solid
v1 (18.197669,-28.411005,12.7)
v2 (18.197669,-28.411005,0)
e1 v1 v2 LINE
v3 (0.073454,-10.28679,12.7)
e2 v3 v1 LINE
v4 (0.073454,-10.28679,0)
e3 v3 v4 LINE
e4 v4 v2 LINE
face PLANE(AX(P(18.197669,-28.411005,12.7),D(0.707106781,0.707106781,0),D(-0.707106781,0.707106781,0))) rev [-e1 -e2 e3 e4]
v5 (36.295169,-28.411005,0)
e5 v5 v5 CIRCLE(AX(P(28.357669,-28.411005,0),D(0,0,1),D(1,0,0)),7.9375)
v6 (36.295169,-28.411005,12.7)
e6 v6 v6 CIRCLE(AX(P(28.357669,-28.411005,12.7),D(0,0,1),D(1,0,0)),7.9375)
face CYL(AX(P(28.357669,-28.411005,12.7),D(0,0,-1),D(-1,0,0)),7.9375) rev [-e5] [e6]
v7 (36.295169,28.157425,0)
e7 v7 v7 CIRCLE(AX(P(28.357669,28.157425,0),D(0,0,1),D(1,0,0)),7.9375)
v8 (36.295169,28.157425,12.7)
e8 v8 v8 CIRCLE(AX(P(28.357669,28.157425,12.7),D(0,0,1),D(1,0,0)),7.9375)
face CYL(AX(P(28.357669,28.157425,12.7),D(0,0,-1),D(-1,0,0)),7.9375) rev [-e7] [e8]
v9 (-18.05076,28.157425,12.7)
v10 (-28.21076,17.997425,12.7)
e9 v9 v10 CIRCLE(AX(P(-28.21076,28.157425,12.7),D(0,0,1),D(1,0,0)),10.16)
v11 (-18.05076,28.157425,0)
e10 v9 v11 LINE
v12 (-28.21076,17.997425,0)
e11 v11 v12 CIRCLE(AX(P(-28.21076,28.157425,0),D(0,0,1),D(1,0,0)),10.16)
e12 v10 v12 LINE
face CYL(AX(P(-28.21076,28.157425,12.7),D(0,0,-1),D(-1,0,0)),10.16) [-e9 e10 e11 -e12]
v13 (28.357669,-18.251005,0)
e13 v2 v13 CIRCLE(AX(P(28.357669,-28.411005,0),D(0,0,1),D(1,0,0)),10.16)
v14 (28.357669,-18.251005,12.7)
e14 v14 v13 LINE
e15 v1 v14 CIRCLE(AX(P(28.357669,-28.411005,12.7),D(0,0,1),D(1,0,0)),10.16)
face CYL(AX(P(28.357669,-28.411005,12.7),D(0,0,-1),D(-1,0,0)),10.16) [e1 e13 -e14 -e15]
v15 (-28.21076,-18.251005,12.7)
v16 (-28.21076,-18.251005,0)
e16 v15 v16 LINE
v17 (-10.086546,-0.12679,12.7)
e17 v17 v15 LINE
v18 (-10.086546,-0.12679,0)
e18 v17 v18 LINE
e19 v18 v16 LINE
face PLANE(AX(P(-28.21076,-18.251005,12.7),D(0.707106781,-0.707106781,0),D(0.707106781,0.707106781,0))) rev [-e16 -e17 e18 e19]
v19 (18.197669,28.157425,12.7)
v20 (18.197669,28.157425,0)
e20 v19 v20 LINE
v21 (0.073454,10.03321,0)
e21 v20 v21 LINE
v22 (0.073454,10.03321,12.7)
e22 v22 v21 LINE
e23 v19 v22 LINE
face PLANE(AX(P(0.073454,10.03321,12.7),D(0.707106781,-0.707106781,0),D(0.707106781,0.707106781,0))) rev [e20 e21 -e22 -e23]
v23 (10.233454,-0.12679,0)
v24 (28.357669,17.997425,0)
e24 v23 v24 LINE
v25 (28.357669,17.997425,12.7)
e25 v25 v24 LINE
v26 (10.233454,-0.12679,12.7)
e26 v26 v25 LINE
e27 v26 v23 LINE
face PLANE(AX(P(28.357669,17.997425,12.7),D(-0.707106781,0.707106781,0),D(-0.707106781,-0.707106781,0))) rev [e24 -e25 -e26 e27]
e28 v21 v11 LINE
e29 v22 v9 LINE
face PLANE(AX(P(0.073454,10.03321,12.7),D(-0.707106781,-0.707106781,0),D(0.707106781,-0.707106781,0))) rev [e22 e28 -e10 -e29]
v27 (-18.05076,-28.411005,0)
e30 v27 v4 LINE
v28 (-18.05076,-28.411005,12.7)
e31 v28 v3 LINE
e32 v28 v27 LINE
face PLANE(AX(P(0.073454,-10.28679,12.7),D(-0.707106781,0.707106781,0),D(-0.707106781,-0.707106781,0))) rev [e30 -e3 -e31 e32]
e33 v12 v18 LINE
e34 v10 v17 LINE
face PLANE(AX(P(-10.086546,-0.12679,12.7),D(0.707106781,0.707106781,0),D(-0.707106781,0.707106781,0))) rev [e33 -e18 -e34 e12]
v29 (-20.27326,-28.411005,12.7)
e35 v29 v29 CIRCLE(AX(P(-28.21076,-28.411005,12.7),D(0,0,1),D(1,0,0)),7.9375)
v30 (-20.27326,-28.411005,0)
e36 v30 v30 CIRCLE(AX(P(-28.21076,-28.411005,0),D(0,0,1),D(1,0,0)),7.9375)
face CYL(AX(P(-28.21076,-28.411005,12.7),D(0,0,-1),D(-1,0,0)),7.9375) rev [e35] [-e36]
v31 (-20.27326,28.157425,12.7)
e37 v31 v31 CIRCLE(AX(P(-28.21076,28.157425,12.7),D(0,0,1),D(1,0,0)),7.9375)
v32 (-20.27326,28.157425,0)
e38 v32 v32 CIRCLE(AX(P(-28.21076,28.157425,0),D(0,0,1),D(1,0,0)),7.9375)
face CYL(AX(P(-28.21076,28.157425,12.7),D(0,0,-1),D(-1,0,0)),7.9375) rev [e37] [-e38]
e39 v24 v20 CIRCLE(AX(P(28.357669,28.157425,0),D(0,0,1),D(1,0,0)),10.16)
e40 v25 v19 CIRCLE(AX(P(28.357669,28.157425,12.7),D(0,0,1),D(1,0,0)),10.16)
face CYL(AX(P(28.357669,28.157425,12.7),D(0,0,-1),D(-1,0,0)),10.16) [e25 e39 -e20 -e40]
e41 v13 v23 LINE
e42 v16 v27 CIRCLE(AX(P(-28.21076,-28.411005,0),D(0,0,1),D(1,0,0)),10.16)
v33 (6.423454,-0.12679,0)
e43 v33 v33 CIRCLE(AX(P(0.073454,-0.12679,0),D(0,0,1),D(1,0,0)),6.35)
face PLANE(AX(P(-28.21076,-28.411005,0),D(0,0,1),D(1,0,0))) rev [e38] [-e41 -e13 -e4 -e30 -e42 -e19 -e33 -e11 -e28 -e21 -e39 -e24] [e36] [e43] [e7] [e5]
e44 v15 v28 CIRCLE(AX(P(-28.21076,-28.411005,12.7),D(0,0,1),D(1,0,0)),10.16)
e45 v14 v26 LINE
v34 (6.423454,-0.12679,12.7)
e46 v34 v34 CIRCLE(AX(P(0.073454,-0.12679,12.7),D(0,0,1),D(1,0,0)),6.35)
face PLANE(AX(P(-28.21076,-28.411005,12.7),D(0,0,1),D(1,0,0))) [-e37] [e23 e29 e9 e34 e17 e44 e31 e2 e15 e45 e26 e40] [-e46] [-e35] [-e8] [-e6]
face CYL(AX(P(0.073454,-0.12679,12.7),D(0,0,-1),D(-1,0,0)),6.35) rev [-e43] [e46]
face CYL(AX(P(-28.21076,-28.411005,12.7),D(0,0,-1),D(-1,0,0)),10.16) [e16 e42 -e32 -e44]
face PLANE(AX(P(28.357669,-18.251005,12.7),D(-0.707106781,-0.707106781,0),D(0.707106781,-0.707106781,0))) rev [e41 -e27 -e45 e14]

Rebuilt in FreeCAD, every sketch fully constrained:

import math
import FreeCAD as App
import Part
import Sketcher

V = App.Vector
Q = App.Units.Quantity

doc = App.newDocument("Part")
params = doc.addObject("Spreadsheet::Sheet", "Params")
for row, (alias, value) in enumerate([
    ("sketch1_diameter", "0.5 in"),
    ("sketch1_radius", "0.4 in"),
    ("sketch1_diameter2", "0.625 in"),
    ("pad1_length", "0.5 in"),
], start=1):
    params.set(f"A{row}", alias)
    params.set(f"B{row}", "=" + value)
    params.setAlias(f"B{row}", alias)

body = doc.addObject("PartDesign::Body", "Body")

# Sketch on XY plane
sketch1 = body.newObject("Sketcher::SketchObject", "Sketch")
sketch1.AttachmentSupport = (doc.getObject("XY_Plane"), [""])
sketch1.MapMode = "FlatFace"
sketch1.addGeometry([
    Part.LineSegment(V(-10.086546, -0.12679, 0), V(-28.21076, -18.251005, 0)),  # 0
    Part.ArcOfCircle(Part.Circle(V(-28.21076, -28.411005, 0), V(0, 0, 1), 10.16), math.radians(90), math.radians(360)),  # 1
    Part.LineSegment(V(-18.05076, -28.411005, 0), V(0.073454, -10.28679, 0)),  # 2
    Part.LineSegment(V(0.073454, -10.28679, 0), V(18.197669, -28.411005, 0)),  # 3
    Part.ArcOfCircle(Part.Circle(V(28.357669, -28.411005, 0), V(0, 0, 1), 10.16), math.radians(180), math.radians(450)),  # 4
    Part.LineSegment(V(28.357669, -18.251005, 0), V(10.233454, -0.12679, 0)),  # 5
    Part.LineSegment(V(10.233454, -0.12679, 0), V(28.357669, 17.997425, 0)),  # 6
    Part.ArcOfCircle(Part.Circle(V(28.357669, 28.157425, 0), V(0, 0, 1), 10.16), math.radians(-90), math.radians(180)),  # 7
    Part.LineSegment(V(18.197669, 28.157425, 0), V(0.073454, 10.03321, 0)),  # 8
    Part.LineSegment(V(0.073454, 10.03321, 0), V(-18.05076, 28.157425, 0)),  # 9
    Part.ArcOfCircle(Part.Circle(V(-28.21076, 28.157425, 0), V(0, 0, 1), 10.16), math.radians(0), math.radians(270)),  # 10
    Part.LineSegment(V(-28.21076, 17.997425, 0), V(-10.086546, -0.12679, 0)),  # 11
    Part.Circle(V(28.357669, -28.411005, 0), V(0, 0, 1), 7.9375),  # 12
    Part.Circle(V(0.073454, -0.12679, 0), V(0, 0, 1), 6.35),  # 13
    Part.Circle(V(-28.21076, -28.411005, 0), V(0, 0, 1), 7.9375),  # 14
    Part.Circle(V(28.357669, 28.157425, 0), V(0, 0, 1), 7.9375),  # 15
    Part.Circle(V(-28.21076, 28.157425, 0), V(0, 0, 1), 7.9375),  # 16
], False)
sketch1.addConstraint([
    Sketcher.Constraint("Coincident", 0, 2, 1, 1),
    Sketcher.Constraint("Coincident", 1, 2, 2, 1),
    Sketcher.Constraint("Coincident", 2, 2, 3, 1),
    Sketcher.Constraint("Coincident", 3, 2, 4, 1),
    Sketcher.Constraint("Coincident", 4, 2, 5, 1),
    Sketcher.Constraint("Coincident", 5, 2, 6, 1),
    Sketcher.Constraint("Coincident", 6, 2, 7, 1),
    Sketcher.Constraint("Coincident", 7, 2, 8, 1),
    Sketcher.Constraint("Coincident", 8, 2, 9, 1),
    Sketcher.Constraint("Coincident", 9, 2, 10, 1),
    Sketcher.Constraint("Coincident", 10, 2, 11, 1),
    Sketcher.Constraint("Coincident", 11, 2, 0, 1),
    Sketcher.Constraint("Coincident", 12, 3, 4, 3),
    Sketcher.Constraint("Coincident", 14, 3, 1, 3),
    Sketcher.Constraint("Coincident", 15, 3, 7, 3),
    Sketcher.Constraint("Coincident", 16, 3, 10, 3),
    Sketcher.Constraint("Equal", 1, 4),
    Sketcher.Constraint("Equal", 4, 7),
    Sketcher.Constraint("Equal", 7, 10),
    Sketcher.Constraint("Equal", 12, 14),
    Sketcher.Constraint("Equal", 14, 15),
    Sketcher.Constraint("Equal", 15, 16),
    Sketcher.Constraint("Parallel", 0, 2),
    Sketcher.Constraint("Perpendicular", 2, 3),
    Sketcher.Constraint("Parallel", 3, 5),
    Sketcher.Constraint("Perpendicular", 5, 6),
    Sketcher.Constraint("Parallel", 6, 8),
    Sketcher.Constraint("Perpendicular", 8, 9),
    Sketcher.Constraint("Parallel", 9, 11),
    Sketcher.Constraint("Horizontal", 1, 3, 4, 3),
    Sketcher.Constraint("Horizontal", 7, 3, 10, 3),
    Sketcher.Constraint("Horizontal", 14, 3, 1, 2),
    Sketcher.Constraint("Horizontal", 1, 2, 3, 2),
    Sketcher.Constraint("Horizontal", 13, 3, 5, 2),
    Sketcher.Constraint("Horizontal", 16, 3, 7, 2),
    Sketcher.Constraint("Horizontal", 7, 2, 9, 2),
    Sketcher.Constraint("Horizontal", 5, 2, 11, 2),
    Sketcher.Constraint("Vertical", 4, 3, 7, 3),
    Sketcher.Constraint("Vertical", 1, 3, 10, 3),
    Sketcher.Constraint("Vertical", 16, 3, 0, 2),
    Sketcher.Constraint("Vertical", 13, 3, 2, 2),
    Sketcher.Constraint("Vertical", 15, 3, 4, 2),
    Sketcher.Constraint("Vertical", 4, 2, 6, 2),
    Sketcher.Constraint("Vertical", 2, 2, 8, 2),
    Sketcher.Constraint("Equal", 0, 2),
    Sketcher.Constraint("Diameter", 13, Q("0.5 in")),
    Sketcher.Constraint("Radius", 1, Q("0.4 in")),
    Sketcher.Constraint("Diameter", 12, Q("0.625 in")),
    Sketcher.Constraint("Distance", 0, Q("25.63151 mm")),
    Sketcher.Constraint("DistanceX", 1, 3, -1, 1, Q("28.21076 mm")),
    Sketcher.Constraint("DistanceY", 13, 3, -1, 1, Q("0.12679 mm")),
])
sketch1.setExpression("Constraints[45]", "Params.sketch1_diameter")
sketch1.setExpression("Constraints[46]", "Params.sketch1_radius")
sketch1.setExpression("Constraints[47]", "Params.sketch1_diameter2")
pad1 = body.newObject("PartDesign::Pad", "Pad")
pad1.Profile = sketch1
pad1.setExpression("Length", "Params.pad1_length")

doc.recompute()
